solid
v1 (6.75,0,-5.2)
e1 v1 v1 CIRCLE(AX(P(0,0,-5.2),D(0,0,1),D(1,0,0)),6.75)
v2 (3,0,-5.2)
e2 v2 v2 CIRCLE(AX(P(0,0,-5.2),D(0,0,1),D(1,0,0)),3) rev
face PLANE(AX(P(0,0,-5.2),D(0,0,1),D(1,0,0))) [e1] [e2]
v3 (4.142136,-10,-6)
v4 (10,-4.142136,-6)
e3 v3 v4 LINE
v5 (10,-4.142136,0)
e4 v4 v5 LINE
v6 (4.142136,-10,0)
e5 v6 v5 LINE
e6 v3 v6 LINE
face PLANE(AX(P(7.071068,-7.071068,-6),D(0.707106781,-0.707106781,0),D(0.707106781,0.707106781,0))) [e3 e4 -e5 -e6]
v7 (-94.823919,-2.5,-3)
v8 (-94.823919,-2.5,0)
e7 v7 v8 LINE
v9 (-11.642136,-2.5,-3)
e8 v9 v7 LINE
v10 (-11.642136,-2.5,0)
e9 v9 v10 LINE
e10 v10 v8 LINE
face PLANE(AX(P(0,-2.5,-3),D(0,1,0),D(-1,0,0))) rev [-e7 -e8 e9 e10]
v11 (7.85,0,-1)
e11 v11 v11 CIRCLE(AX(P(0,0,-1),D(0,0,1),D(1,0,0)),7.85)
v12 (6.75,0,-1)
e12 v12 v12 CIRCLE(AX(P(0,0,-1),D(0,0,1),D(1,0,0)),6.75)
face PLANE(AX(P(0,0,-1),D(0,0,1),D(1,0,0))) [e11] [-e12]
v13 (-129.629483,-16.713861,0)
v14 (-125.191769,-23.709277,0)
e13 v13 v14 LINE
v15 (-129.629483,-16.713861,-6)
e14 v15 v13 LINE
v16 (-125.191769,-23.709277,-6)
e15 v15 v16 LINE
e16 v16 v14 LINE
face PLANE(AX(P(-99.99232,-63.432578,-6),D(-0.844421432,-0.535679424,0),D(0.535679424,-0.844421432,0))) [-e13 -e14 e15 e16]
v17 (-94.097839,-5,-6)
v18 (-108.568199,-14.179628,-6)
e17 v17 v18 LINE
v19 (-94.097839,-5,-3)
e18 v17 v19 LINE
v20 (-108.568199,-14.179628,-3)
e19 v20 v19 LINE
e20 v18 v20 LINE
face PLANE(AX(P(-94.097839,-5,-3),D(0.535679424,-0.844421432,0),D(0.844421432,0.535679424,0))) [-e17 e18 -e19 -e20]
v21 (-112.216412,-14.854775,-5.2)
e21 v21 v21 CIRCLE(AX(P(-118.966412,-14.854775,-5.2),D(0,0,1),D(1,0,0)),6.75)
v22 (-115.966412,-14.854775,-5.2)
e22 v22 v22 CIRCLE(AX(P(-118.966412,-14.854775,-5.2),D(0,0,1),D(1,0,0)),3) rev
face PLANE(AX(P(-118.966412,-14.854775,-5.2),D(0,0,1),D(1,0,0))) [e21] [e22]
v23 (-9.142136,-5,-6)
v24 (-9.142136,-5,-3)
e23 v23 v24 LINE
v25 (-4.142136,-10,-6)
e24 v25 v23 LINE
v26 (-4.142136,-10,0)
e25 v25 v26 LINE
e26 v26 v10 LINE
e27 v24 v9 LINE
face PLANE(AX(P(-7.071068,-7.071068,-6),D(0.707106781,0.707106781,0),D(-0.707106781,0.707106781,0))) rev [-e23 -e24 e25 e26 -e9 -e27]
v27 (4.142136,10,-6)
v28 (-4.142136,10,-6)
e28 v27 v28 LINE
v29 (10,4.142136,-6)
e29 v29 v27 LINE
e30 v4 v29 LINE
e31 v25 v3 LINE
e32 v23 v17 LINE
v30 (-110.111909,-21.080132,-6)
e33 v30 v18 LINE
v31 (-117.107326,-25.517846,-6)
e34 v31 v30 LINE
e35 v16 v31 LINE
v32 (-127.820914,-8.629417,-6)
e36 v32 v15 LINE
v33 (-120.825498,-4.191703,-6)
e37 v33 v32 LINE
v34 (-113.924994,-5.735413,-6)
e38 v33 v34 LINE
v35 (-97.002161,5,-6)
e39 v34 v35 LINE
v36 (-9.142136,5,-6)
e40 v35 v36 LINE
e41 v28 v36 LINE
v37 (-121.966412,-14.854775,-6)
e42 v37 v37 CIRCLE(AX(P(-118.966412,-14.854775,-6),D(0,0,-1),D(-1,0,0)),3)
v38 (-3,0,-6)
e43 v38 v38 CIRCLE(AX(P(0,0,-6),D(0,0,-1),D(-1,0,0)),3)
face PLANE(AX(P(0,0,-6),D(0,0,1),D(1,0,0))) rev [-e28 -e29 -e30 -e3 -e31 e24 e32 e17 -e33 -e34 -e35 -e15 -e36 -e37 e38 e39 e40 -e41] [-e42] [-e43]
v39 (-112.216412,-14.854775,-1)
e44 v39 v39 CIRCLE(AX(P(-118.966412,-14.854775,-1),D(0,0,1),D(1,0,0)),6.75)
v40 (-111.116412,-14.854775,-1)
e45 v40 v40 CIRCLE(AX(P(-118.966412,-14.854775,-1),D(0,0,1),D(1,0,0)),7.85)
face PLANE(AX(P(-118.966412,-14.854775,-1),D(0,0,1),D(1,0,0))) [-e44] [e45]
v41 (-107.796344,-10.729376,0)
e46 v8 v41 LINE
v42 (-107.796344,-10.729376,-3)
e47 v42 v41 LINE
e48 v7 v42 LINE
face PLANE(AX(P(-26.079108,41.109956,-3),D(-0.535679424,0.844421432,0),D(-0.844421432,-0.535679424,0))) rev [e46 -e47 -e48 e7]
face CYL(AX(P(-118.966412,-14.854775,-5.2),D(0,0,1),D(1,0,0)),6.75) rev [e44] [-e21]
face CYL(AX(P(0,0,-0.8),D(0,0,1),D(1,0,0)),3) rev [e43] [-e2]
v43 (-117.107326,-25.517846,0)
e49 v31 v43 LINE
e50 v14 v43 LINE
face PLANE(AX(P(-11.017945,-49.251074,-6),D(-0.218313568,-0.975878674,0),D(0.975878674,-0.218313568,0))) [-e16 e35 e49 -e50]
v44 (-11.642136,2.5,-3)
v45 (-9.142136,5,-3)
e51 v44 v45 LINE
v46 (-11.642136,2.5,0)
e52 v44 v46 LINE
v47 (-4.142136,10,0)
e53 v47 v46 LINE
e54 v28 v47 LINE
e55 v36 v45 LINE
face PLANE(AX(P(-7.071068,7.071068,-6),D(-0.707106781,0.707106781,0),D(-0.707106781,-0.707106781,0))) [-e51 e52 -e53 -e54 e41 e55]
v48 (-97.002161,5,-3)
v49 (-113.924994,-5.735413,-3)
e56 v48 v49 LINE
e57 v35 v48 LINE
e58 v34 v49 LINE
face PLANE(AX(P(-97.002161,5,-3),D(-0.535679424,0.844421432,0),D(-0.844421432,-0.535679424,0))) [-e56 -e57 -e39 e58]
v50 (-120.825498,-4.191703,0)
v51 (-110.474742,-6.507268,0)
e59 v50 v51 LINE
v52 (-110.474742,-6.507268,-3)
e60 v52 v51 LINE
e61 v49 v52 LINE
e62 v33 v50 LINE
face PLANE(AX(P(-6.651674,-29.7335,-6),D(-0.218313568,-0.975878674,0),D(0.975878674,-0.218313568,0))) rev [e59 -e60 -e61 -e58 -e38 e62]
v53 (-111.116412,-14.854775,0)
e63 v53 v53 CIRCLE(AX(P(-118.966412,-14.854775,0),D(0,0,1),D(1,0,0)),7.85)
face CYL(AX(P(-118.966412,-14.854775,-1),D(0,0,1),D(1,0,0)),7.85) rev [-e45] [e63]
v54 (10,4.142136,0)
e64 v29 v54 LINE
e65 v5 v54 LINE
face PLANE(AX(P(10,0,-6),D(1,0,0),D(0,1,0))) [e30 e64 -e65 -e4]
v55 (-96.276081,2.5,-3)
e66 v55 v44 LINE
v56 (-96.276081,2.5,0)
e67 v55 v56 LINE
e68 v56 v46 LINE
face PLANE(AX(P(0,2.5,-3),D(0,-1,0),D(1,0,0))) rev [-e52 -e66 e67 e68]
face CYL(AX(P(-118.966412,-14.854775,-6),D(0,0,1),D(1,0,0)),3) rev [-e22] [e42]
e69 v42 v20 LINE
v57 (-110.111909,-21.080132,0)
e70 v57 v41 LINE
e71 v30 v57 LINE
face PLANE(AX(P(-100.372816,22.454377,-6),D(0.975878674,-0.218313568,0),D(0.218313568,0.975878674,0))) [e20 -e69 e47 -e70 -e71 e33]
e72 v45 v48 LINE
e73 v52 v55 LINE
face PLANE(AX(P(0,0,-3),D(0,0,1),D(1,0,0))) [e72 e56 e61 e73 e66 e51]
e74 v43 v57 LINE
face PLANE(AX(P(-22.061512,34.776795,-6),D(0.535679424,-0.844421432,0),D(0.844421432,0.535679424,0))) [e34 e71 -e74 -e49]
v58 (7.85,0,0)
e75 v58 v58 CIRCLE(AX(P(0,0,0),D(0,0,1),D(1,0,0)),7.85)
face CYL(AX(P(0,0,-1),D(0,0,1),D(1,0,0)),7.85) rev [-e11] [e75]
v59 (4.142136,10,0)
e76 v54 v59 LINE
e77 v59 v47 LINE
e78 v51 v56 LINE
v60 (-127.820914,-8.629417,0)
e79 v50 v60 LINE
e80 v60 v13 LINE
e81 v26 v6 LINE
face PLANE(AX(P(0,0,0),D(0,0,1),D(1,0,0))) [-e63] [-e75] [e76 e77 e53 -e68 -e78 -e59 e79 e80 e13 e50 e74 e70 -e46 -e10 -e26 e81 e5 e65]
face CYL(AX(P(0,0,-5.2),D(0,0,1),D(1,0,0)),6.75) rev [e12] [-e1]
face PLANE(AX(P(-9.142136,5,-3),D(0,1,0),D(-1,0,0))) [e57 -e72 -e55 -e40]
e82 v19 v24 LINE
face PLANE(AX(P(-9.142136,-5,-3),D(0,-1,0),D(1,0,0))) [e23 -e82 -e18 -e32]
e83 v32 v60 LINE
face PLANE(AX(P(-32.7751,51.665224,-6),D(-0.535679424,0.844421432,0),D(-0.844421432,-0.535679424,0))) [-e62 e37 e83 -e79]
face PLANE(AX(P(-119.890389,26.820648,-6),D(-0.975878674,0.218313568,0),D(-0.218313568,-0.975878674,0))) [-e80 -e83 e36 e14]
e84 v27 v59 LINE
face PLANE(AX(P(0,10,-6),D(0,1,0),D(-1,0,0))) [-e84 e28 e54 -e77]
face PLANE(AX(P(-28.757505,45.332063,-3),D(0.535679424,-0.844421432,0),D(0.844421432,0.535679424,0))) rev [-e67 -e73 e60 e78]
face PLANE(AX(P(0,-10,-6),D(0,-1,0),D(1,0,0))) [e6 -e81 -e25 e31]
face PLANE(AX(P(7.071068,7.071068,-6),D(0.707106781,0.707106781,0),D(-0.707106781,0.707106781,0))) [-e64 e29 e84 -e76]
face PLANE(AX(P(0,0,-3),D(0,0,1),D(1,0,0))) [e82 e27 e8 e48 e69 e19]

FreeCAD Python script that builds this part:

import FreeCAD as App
import Part
import Sketcher

V = App.Vector
Q = App.Units.Quantity

doc = App.newDocument("Part")
params = doc.addObject("Spreadsheet::Sheet", "Params")
for row, (alias, value) in enumerate([
    ("sketch1_diameter", "6 mm"),
    ("pad1_length", "6 mm"),
    ("pad2_length", "3 mm"),
    ("sketch3_diameter", "15.7 mm"),
    ("pocket1_length", "1 mm"),
    ("sketch4_diameter", "13.5 mm"),
    ("pocket2_length", "5.2 mm"),
    ("pad3_length", "0.8 mm"),
    ("sketch6_diameter", "6 mm"),
    ("pocket3_length", "0.8 mm"),
    ("sketch7_diameter", "6 mm"),
    ("pad4_length", "6 mm"),
    ("sketch8_diameter", "15.7 mm"),
    ("pocket4_length", "1 mm"),
    ("sketch9_diameter", "13.5 mm"),
    ("pocket5_length", "5.2 mm"),
    ("pad5_length", "3 mm"),
    ("pocket6_length", "3 mm"),
], start=1):
    params.set(f"A{row}", alias)
    params.set(f"B{row}", "=" + value)
    params.setAlias(f"B{row}", alias)

body = doc.addObject("PartDesign::Body", "Body")

# Sketch on XY plane
sketch1 = body.newObject("Sketcher::SketchObject", "Sketch")
sketch1.AttachmentSupport = (doc.getObject("XY_Plane"), [""])
sketch1.MapMode = "FlatFace"
sketch1.addGeometry(Part.LineSegment(V(4.1, 10, 0), V(-4.1, 10, 0)), False)
sketch1.addGeometry(Part.LineSegment(V(-4.1, 10, 0), V(-11.6, 2.5, 0)), False)
sketch1.addGeometry(Part.LineSegment(V(-11.6, 2.5, 0), V(-96.3, 2.5, 0)), False)
sketch1.addGeometry(Part.LineSegment(V(-96.3, 2.5, 0), V(-110.5, -6.5, 0)), False)
sketch1.addGeometry(Part.LineSegment(V(-110.5, -6.5, 0), V(-120.8, -4.2, 0)), False)
sketch1.addGeometry(Part.LineSegment(V(-120.8, -4.2, 0), V(-127.8, -8.6, 0)), False)
sketch1.addGeometry(Part.LineSegment(V(-127.8, -8.6, 0), V(-129.6, -16.7, 0)), False)
sketch1.addGeometry(Part.LineSegment(V(-129.6, -16.7, 0), V(-125.2, -23.7, 0)), False)
sketch1.addGeometry(Part.LineSegment(V(-125.2, -23.7, 0), V(-117.1, -25.5, 0)), False)
sketch1.addGeometry(Part.LineSegment(V(-117.1, -25.5, 0), V(-110.1, -21.1, 0)), False)
sketch1.addGeometry(Part.LineSegment(V(-110.1, -21.1, 0), V(-107.8, -10.7, 0)), False)
sketch1.addGeometry(Part.LineSegment(V(-107.8, -10.7, 0), V(-94.8, -2.5, 0)), False)
sketch1.addGeometry(Part.LineSegment(V(-94.8, -2.5, 0), V(-11.6, -2.5, 0)), False)
sketch1.addGeometry(Part.LineSegment(V(-11.6, -2.5, 0), V(-4.1, -10, 0)), False)
sketch1.addGeometry(Part.LineSegment(V(-4.1, -10, 0), V(4.1, -10, 0)), False)
sketch1.addGeometry(Part.LineSegment(V(4.1, -10, 0), V(10, -4.1, 0)), False)
sketch1.addGeometry(Part.LineSegment(V(10, -4.1, 0), V(10, 4.1, 0)), False)
sketch1.addGeometry(Part.LineSegment(V(10, 4.1, 0), V(4.1, 10, 0)), False)
sketch1.addGeometry(Part.Circle(V(-119, -14.9, 0), V(0, 0, 1), 3), False)
sketch1.addGeometry(Part.Circle(V(-0.9, 0, 0), V(0, 0, 1), 3), False)
sketch1.addConstraint(Sketcher.Constraint("Coincident", 0, 2, 1, 1))
sketch1.addConstraint(Sketcher.Constraint("Coincident", 1, 2, 2, 1))
sketch1.addConstraint(Sketcher.Constraint("Coincident", 2, 2, 3, 1))
sketch1.addConstraint(Sketcher.Constraint("Coincident", 3, 2, 4, 1))
sketch1.addConstraint(Sketcher.Constraint("Coincident", 4, 2, 5, 1))
sketch1.addConstraint(Sketcher.Constraint("Coincident", 5, 2, 6, 1))
sketch1.addConstraint(Sketcher.Constraint("Coincident", 6, 2, 7, 1))
sketch1.addConstraint(Sketcher.Constraint("Coincident", 7, 2, 8, 1))
sketch1.addConstraint(Sketcher.Constraint("Coincident", 8, 2, 9, 1))
sketch1.addConstraint(Sketcher.Constraint("Coincident", 9, 2, 10, 1))
sketch1.addConstraint(Sketcher.Constraint("Coincident", 10, 2, 11, 1))
sketch1.addConstraint(Sketcher.Constraint("Coincident", 11, 2, 12, 1))
sketch1.addConstraint(Sketcher.Constraint("Coincident", 12, 2, 13, 1))
sketch1.addConstraint(Sketcher.Constraint("Coincident", 13, 2, 14, 1))
sketch1.addConstraint(Sketcher.Constraint("Coincident", 14, 2, 15, 1))
sketch1.addConstraint(Sketcher.Constraint("Coincident", 15, 2, 16, 1))
sketch1.addConstraint(Sketcher.Constraint("Coincident", 16, 2, 17, 1))
sketch1.addConstraint(Sketcher.Constraint("Coincident", 17, 2, 0, 1))
sketch1.addConstraint(Sketcher.Constraint("Horizontal", 0))
sketch1.addConstraint(Sketcher.Constraint("Horizontal", 2))
sketch1.addConstraint(Sketcher.Constraint("Horizontal", 12))
sketch1.addConstraint(Sketcher.Constraint("Horizontal", 14))
sketch1.addConstraint(Sketcher.Constraint("Vertical", 16))
sketch1.addConstraint(Sketcher.Constraint("Equal", 18, 19))
sketch1.addConstraint(Sketcher.Constraint("Symmetric", 0, 2, 14, 2, -1, 1))
sketch1.addConstraint(Sketcher.Constraint("Symmetric", 1, 2, 12, 2, -1))
sketch1.addConstraint(Sketcher.Constraint("PointOnObject", 19, 3, -1))
sketch1.addConstraint(Sketcher.Constraint("Parallel", 3, 5))
sketch1.addConstraint(Sketcher.Constraint("Perpendicular", 4, 6))
sketch1.addConstraint(Sketcher.Constraint("Perpendicular", 5, 7))
sketch1.addConstraint(Sketcher.Constraint("Perpendicular", 6, 8))
sketch1.addConstraint(Sketcher.Constraint("Perpendicular", 7, 9))
sketch1.addConstraint(Sketcher.Constraint("Perpendicular", 8, 10))
sketch1.addConstraint(Sketcher.Constraint("Parallel", 9, 11))
sketch1.addConstraint(Sketcher.Constraint("Perpendicular", 1, 13))
sketch1.addConstraint(Sketcher.Constraint("Perpendicular", 13, 15))
sketch1.addConstraint(Sketcher.Constraint("Perpendicular", 15, 17))
sketch1.addConstraint(Sketcher.Constraint("Vertical", 0, 2, 13, 2))
sketch1.addConstraint(Sketcher.Constraint("Vertical", 14, 2, 17, 2))
sketch1.addConstraint(Sketcher.Constraint("Equal", 14, 16))
sketch1.addConstraint(Sketcher.Constraint("Equal", 1, 4))
sketch1.addConstraint(Sketcher.Constraint("Equal", 5, 6))
sketch1.addConstraint(Sketcher.Constraint("Equal", 6, 7))
sketch1.addConstraint(Sketcher.Constraint("Equal", 7, 8))
sketch1.addConstraint(Sketcher.Constraint("Equal", 8, 9))
sketch1.addConstraint(Sketcher.Constraint("Equal", 4, 10))
sketch1.addConstraint(Sketcher.Constraint("Equal", 9, 15))
sketch1.addConstraint(Sketcher.Constraint("Diameter", 18, Q("6 mm")))
sketch1.addConstraint(Sketcher.Constraint("DistanceY", -1, 1, 0, 2, Q("10 mm")))
sketch1.addConstraint(Sketcher.Constraint("DistanceY", 11, 2, 2, 2, Q("5 mm")))
sketch1.addConstraint(Sketcher.Constraint("Angle", 3, Q("-147.61 deg")))
sketch1.addConstraint(Sketcher.Constraint("Angle", 4, Q("167.39 deg")))
sketch1.addConstraint(Sketcher.Constraint("Distance", 11, Q("15.362501 mm")))
sketch1.addConstraint(Sketcher.Constraint("DistanceX", 0, 2, 0, 1, Q("8.284271 mm")))
sketch1.addConstraint(Sketcher.Constraint("DistanceY", 18, 3, 10, 2, Q("4.125399 mm")))
sketch1.addConstraint(Sketcher.Constraint("DistanceX", 2, 2, 2, 1, Q("84.633945 mm")))
sketch1.addConstraint(Sketcher.Constraint("DistanceX", 18, 3, -1, 1, Q("118.966412 mm")))
sketch1.addConstraint(Sketcher.Constraint("DistanceX", 0, 2, 19, 3, Q("3.265521 mm")))
sketch1.setExpression("Constraints[47]", "Params.sketch1_diameter")
pad1 = body.newObject("PartDesign::Pad", "Pad")
pad1.Profile = sketch1
pad1.setExpression("Length", "Params.pad1_length")
pad1.Reversed = True

# Sketch on XY plane
sketch2 = body.newObject("Sketcher::SketchObject", "Sketch001")
sketch2.AttachmentSupport = (doc.getObject("XY_Plane"), [""])
sketch2.MapMode = "FlatFace"
sketch2.addGeometry(Part.LineSegment(V(-113.9, -5.7, 0), V(-110.5, -6.5, 0)), False)
sketch2.addGeometry(Part.LineSegment(V(-110.5, -6.5, 0), V(-96.3, 2.5, 0)), False)
sketch2.addGeometry(Part.LineSegment(V(-96.3, 2.5, 0), V(-11.6, 2.5, 0)), False)
sketch2.addGeometry(Part.LineSegment(V(-11.6, 2.5, 0), V(-9.1, 5, 0)), False)
sketch2.addGeometry(Part.LineSegment(V(-9.1, 5, 0), V(-97, 5, 0)), False)
sketch2.addGeometry(Part.LineSegment(V(-97, 5, 0), V(-113.9, -5.7, 0)), False)
sketch2.addGeometry(Part.LineSegment(V(-107.8, -10.7, 0), V(-108.6, -14.2, 0)), False)
sketch2.addGeometry(Part.LineSegment(V(-108.6, -14.2, 0), V(-94.1, -5, 0)), False)
sketch2.addGeometry(Part.LineSegment(V(-94.1, -5, 0), V(-9.1, -5, 0)), False)
sketch2.addGeometry(Part.LineSegment(V(-9.1, -5, 0), V(-11.6, -2.5, 0)), False)
sketch2.addGeometry(Part.LineSegment(V(-11.6, -2.5, 0), V(-94.8, -2.5, 0)), False)
sketch2.addGeometry(Part.LineSegment(V(-94.8, -2.5, 0), V(-107.8, -10.7, 0)), False)
sketch2.addConstraint(Sketcher.Constraint("Coincident", 0, 2, 1, 1))
sketch2.addConstraint(Sketcher.Constraint("Coincident", 1, 2, 2, 1))
sketch2.addConstraint(Sketcher.Constraint("Coincident", 2, 2, 3, 1))
sketch2.addConstraint(Sketcher.Constraint("Coincident", 3, 2, 4, 1))
sketch2.addConstraint(Sketcher.Constraint("Coincident", 4, 2, 5, 1))
sketch2.addConstraint(Sketcher.Constraint("Coincident", 5, 2, 0, 1))
sketch2.addConstraint(Sketcher.Constraint("Coincident", 6, 2, 7, 1))
sketch2.addConstraint(Sketcher.Constraint("Coincident", 7, 2, 8, 1))
sketch2.addConstraint(Sketcher.Constraint("Coincident", 8, 2, 9, 1))
sketch2.addConstraint(Sketcher.Constraint("Coincident", 9, 2, 10, 1))
sketch2.addConstraint(Sketcher.Constraint("Coincident", 10, 2, 11, 1))
sketch2.addConstraint(Sketcher.Constraint("Coincident", 11, 2, 6, 1))
sketch2.addConstraint(Sketcher.Constraint("Horizontal", 2))
sketch2.addConstraint(Sketcher.Constraint("Horizontal", 4))
sketch2.addConstraint(Sketcher.Constraint("Horizontal", 8))
sketch2.addConstraint(Sketcher.Constraint("Horizontal", 10))
sketch2.addConstraint(Sketcher.Constraint("Symmetric", 3, 2, 8, 2, -1))
sketch2.addConstraint(Sketcher.Constraint("Symmetric", 2, 2, 9, 2, -1))
sketch2.addConstraint(Sketcher.Constraint("Parallel", 1, 5))
sketch2.addConstraint(Sketcher.Constraint("Perpendicular", 0, 6))
sketch2.addConstraint(Sketcher.Constraint("Parallel", 5, 7))
sketch2.addConstraint(Sketcher.Constraint("Perpendicular", 3, 9))
sketch2.addConstraint(Sketcher.Constraint("Parallel", 7, 11))
sketch2.addConstraint(Sketcher.Constraint("Equal", 0, 3))
sketch2.addConstraint(Sketcher.Constraint("Equal", 3, 6))
sketch2.addConstraint(Sketcher.Constraint("DistanceY", -1, 1, 3, 2, Q("5 mm")))
sketch2.addConstraint(Sketcher.Constraint("DistanceY", 9, 2, 2, 2, Q("5 mm")))
sketch2.addConstraint(Sketcher.Constraint("Angle", 0, Q("-12.61 deg")))
sketch2.addConstraint(Sketcher.Constraint("Angle", 1, Q("32.39 deg")))
sketch2.addConstraint(Sketcher.Constraint("Distance", 11, Q("15.362501 mm")))
sketch2.addConstraint(Sketcher.Constraint("DistanceX", 6, 2, -1, 1, Q("108.568199 mm")))
sketch2.addConstraint(Sketcher.Constraint("Distance", 1, Q("16.814662 mm")))
sketch2.addConstraint(Sketcher.Constraint("DistanceX", 2, 1, 2, 2, Q("84.633945 mm")))
sketch2.addConstraint(Sketcher.Constraint("DistanceX", 8, 1, 8, 2, Q("84.955703 mm")))
pad2 = body.newObject("PartDesign::Pad", "Pad001")
pad2.Profile = sketch2
pad2.setExpression("Length", "Params.pad2_length")
pad2.Reversed = True

# Sketch on XY plane
sketch3 = body.newObject("Sketcher::SketchObject", "Sketch002")
sketch3.AttachmentSupport = (doc.getObject("XY_Plane"), [""])
sketch3.MapMode = "FlatFace"
sketch3.AttachmentOffset = App.Placement(V(0, 0, -6), App.Rotation())
sketch3.addGeometry(Part.Circle(V(0, 0, 0), V(0, 0, 1), 8), False)
sketch3.addGeometry(Part.Circle(V(-119, -15, 0), V(0, 0, 1), 8), False)
sketch3.addConstraint(Sketcher.Constraint("Coincident", 0, 3, -1, 1))
sketch3.addConstraint(Sketcher.Constraint("Equal", 0, 1))
sketch3.addConstraint(Sketcher.Constraint("Diameter", 0, Q("15.7 mm")))
sketch3.addConstraint(Sketcher.Constraint("DistanceX", 1, 3, -1, 1, Q("118.966412 mm")))
sketch3.addConstraint(Sketcher.Constraint("DistanceY", 1, 3, -1, 1, Q("14.854775 mm")))
sketch3.setExpression("Constraints[2]", "Params.sketch3_diameter")
pocket1 = body.newObject("PartDesign::Pocket", "Pocket")
pocket1.Profile = sketch3
pocket1.setExpression("Length", "Params.pocket1_length")
pocket1.Reversed = True

# Sketch on XY plane
sketch4 = body.newObject("Sketcher::SketchObject", "Sketch003")
sketch4.AttachmentSupport = (doc.getObject("XY_Plane"), [""])
sketch4.MapMode = "FlatFace"
sketch4.AttachmentOffset = App.Placement(V(0, 0, -6), App.Rotation())
sketch4.addGeometry(Part.Circle(V(0, 0, 0), V(0, 0, 1), 7), False)
sketch4.addGeometry(Part.Circle(V(-119, -15, 0), V(0, 0, 1), 7), False)
sketch4.addConstraint(Sketcher.Constraint("Coincident", 0, 3, -1, 1))
sketch4.addConstraint(Sketcher.Constraint("Equal", 0, 1))
sketch4.addConstraint(Sketcher.Constraint("Diameter", 0, Q("13.5 mm")))
sketch4.addConstraint(Sketcher.Constraint("DistanceX", 1, 3, -1, 1, Q("118.966412 mm")))
sketch4.addConstraint(Sketcher.Constraint("DistanceY", 1, 3, -1, 1, Q("14.854775 mm")))
sketch4.setExpression("Constraints[2]", "Params.sketch4_diameter")
pocket2 = body.newObject("PartDesign::Pocket", "Pocket001")
pocket2.Profile = sketch4
pocket2.setExpression("Length", "Params.pocket2_length")
pocket2.Reversed = True

# Sketch on XY plane
sketch5 = body.newObject("Sketcher::SketchObject", "Sketch004")
sketch5.AttachmentSupport = (doc.getObject("XY_Plane"), [""])
sketch5.MapMode = "FlatFace"
sketch5.addGeometry(Part.LineSegment(V(-6, 3, 0), V(-6, -3, 0)), False)
sketch5.addGeometry(Part.LineSegment(V(-6, -3, 0), V(4, -3, 0)), False)
sketch5.addGeometry(Part.LineSegment(V(4, -3, 0), V(4, 3, 0)), False)
sketch5.addGeometry(Part.LineSegment(V(4, 3, 0), V(-6, 3, 0)), False)
sketch5.addConstraint(Sketcher.Constraint("Coincident", 0, 2, 1, 1))
sketch5.addConstraint(Sketcher.Constraint("Coincident", 1, 2, 2, 1))
sketch5.addConstraint(Sketcher.Constraint("Coincident", 2, 2, 3, 1))
sketch5.addConstraint(Sketcher.Constraint("Coincident", 3, 2, 0, 1))
sketch5.addConstraint(Sketcher.Constraint("Vertical", 0))
sketch5.addConstraint(Sketcher.Constraint("Horizontal", 1))
sketch5.addConstraint(Sketcher.Constraint("Vertical", 2))
sketch5.addConstraint(Sketcher.Constraint("Horizontal", 3))
sketch5.addConstraint(Sketcher.Constraint("DistanceY", 0, 2, 0, 1, Q("6.677631 mm")))
sketch5.addConstraint(Sketcher.Constraint("DistanceX", 1, 1, 1, 2, Q("10.298948 mm")))
sketch5.addConstraint(Sketcher.Constraint("DistanceX", 0, 2, -1, 1, Q("6.026088 mm")))
sketch5.addConstraint(Sketcher.Constraint("DistanceY", 0, 2, -1, 1, Q("3.338815 mm")))
pad3 = body.newObject("PartDesign::Pad", "Pad002")
pad3.Profile = sketch5
pad3.setExpression("Length", "Params.pad3_length")
pad3.Reversed = True

# Sketch on XY plane
sketch6 = body.newObject("Sketcher::SketchObject", "Sketch005")
sketch6.AttachmentSupport = (doc.getObject("XY_Plane"), [""])
sketch6.MapMode = "FlatFace"
sketch6.addGeometry(Part.Circle(V(0, 0, 0), V(0, 0, 1), 3), False)
sketch6.addConstraint(Sketcher.Constraint("Coincident", 0, 3, -1, 1))
sketch6.addConstraint(Sketcher.Constraint("Diameter", 0, Q("6 mm")))
sketch6.setExpression("Constraints[1]", "Params.sketch6_diameter")
pocket3 = body.newObject("PartDesign::Pocket", "Pocket002")
pocket3.Profile = sketch6
pocket3.setExpression("Length", "Params.pocket3_length")

# Sketch on XY plane
sketch7 = body.newObject("Sketcher::SketchObject", "Sketch006")
sketch7.AttachmentSupport = (doc.getObject("XY_Plane"), [""])
sketch7.MapMode = "FlatFace"
sketch7.addGeometry(Part.Circle(V(0, 0, 0), V(0, 0, 1), 9.1), False)
sketch7.addGeometry(Part.Circle(V(0, 0, 0), V(0, 0, 1), 3), False)
sketch7.addGeometry(Part.Circle(V(-119, -14.9, 0), V(0, 0, 1), 8.5), False)
sketch7.addGeometry(Part.Circle(V(-119, -14.9, 0), V(0, 0, 1), 3), False)
sketch7.addConstraint(Sketcher.Constraint("Coincident", 0, 3, -1, 1))
sketch7.addConstraint(Sketcher.Constraint("Coincident", 1, 3, -1, 1))
sketch7.addConstraint(Sketcher.Constraint("Coincident", 3, 3, 2, 3))
sketch7.addConstraint(Sketcher.Constraint("Equal", 1, 3))
sketch7.addConstraint(Sketcher.Constraint("Diameter", 1, Q("6 mm")))
sketch7.addConstraint(Sketcher.Constraint("Diameter", 0, Q("18.143672 mm")))
sketch7.addConstraint(Sketcher.Constraint("Diameter", 2, Q("17.060213 mm")))
sketch7.addConstraint(Sketcher.Constraint("DistanceX", 2, 3, -1, 1, Q("118.966412 mm")))
sketch7.addConstraint(Sketcher.Constraint("DistanceY", 2, 3, -1, 1, Q("14.854775 mm")))
sketch7.setExpression("Constraints[4]", "Params.sketch7_diameter")
pad4 = body.newObject("PartDesign::Pad", "Pad003")
pad4.Profile = sketch7
pad4.setExpression("Length", "Params.pad4_length")
pad4.Reversed = True

# Sketch on XY plane
sketch8 = body.newObject("Sketcher::SketchObject", "Sketch007")
sketch8.AttachmentSupport = (doc.getObject("XY_Plane"), [""])
sketch8.MapMode = "FlatFace"
sketch8.addGeometry(Part.Circle(V(-119, -15, 0), V(0, 0, 1), 8), False)
sketch8.addGeometry(Part.Circle(V(0, 0, 0), V(0, 0, 1), 8), False)
sketch8.addConstraint(Sketcher.Constraint("Coincident", 1, 3, -1, 1))
sketch8.addConstraint(Sketcher.Constraint("Equal", 0, 1))
sketch8.addConstraint(Sketcher.Constraint("Diameter", 0, Q("15.7 mm")))
sketch8.addConstraint(Sketcher.Constraint("DistanceX", 0, 3, -1, 1, Q("118.966412 mm")))
sketch8.addConstraint(Sketcher.Constraint("DistanceY", 0, 3, -1, 1, Q("14.854775 mm")))
sketch8.setExpression("Constraints[2]", "Params.sketch8_diameter")
pocket4 = body.newObject("PartDesign::Pocket", "Pocket003")
pocket4.Profile = sketch8
pocket4.setExpression("Length", "Params.pocket4_length")

# Sketch on XY plane
sketch9 = body.newObject("Sketcher::SketchObject", "Sketch008")
sketch9.AttachmentSupport = (doc.getObject("XY_Plane"), [""])
sketch9.MapMode = "FlatFace"
sketch9.addGeometry(Part.Circle(V(-119, -15, 0), V(0, 0, 1), 7), False)
sketch9.addGeometry(Part.Circle(V(0, 0, 0), V(0, 0, 1), 7), False)
sketch9.addConstraint(Sketcher.Constraint("Coincident", 1, 3, -1, 1))
sketch9.addConstraint(Sketcher.Constraint("Equal", 0, 1))
sketch9.addConstraint(Sketcher.Constraint("Diameter", 0, Q("13.5 mm")))
sketch9.addConstraint(Sketcher.Constraint("DistanceX", 0, 3, -1, 1, Q("118.966412 mm")))
sketch9.addConstraint(Sketcher.Constraint("DistanceY", 0, 3, -1, 1, Q("14.854775 mm")))
sketch9.setExpression("Constraints[2]", "Params.sketch9_diameter")
pocket5 = body.newObject("PartDesign::Pocket", "Pocket004")
pocket5.Profile = sketch9
pocket5.setExpression("Length", "Params.pocket5_length")

# Sketch on XY plane
sketch10 = body.newObject("Sketcher::SketchObject", "Sketch009")
sketch10.AttachmentSupport = (doc.getObject("XY_Plane"), [""])
sketch10.MapMode = "FlatFace"
sketch10.AttachmentOffset = App.Placement(V(0, 0, -3), App.Rotation())
sketch10.addGeometry(Part.LineSegment(V(-11.6, -2.5, 0), V(-9.1, -5, 0)), False)
sketch10.addGeometry(Part.LineSegment(V(-9.1, -5, 0), V(-94.1, -5, 0)), False)
sketch10.addGeometry(Part.LineSegment(V(-94.1, -5, 0), V(-108.6, -14.2, 0)), False)
sketch10.addGeometry(Part.LineSegment(V(-108.6, -14.2, 0), V(-107.8, -10.7, 0)), False)
sketch10.addGeometry(Part.LineSegment(V(-107.8, -10.7, 0), V(-94.8, -2.5, 0)), False)
sketch10.addGeometry(Part.LineSegment(V(-94.8, -2.5, 0), V(-11.6, -2.5, 0)), False)
sketch10.addGeometry(Part.LineSegment(V(-9.1, 5, 0), V(-11.6, 2.5, 0)), False)
sketch10.addGeometry(Part.LineSegment(V(-11.6, 2.5, 0), V(-96.3, 2.5, 0)), False)
sketch10.addGeometry(Part.LineSegment(V(-96.3, 2.5, 0), V(-110.5, -6.5, 0)), False)
sketch10.addGeometry(Part.LineSegment(V(-110.5, -6.5, 0), V(-113.9, -5.7, 0)), False)
sketch10.addGeometry(Part.LineSegment(V(-113.9, -5.7, 0), V(-97, 5, 0)), False)
sketch10.addGeometry(Part.LineSegment(V(-97, 5, 0), V(-9.1, 5, 0)), False)
sketch10.addConstraint(Sketcher.Constraint("Coincident", 0, 2, 1, 1))
sketch10.addConstraint(Sketcher.Constraint("Coincident", 1, 2, 2, 1))
sketch10.addConstraint(Sketcher.Constraint("Coincident", 2, 2, 3, 1))
sketch10.addConstraint(Sketcher.Constraint("Coincident", 3, 2, 4, 1))
sketch10.addConstraint(Sketcher.Constraint("Coincident", 4, 2, 5, 1))
sketch10.addConstraint(Sketcher.Constraint("Coincident", 5, 2, 0, 1))
sketch10.addConstraint(Sketcher.Constraint("Coincident", 6, 2, 7, 1))
sketch10.addConstraint(Sketcher.Constraint("Coincident", 7, 2, 8, 1))
sketch10.addConstraint(Sketcher.Constraint("Coincident", 8, 2, 9, 1))
sketch10.addConstraint(Sketcher.Constraint("Coincident", 9, 2, 10, 1))
sketch10.addConstraint(Sketcher.Constraint("Coincident", 10, 2, 11, 1))
sketch10.addConstraint(Sketcher.Constraint("Coincident", 11, 2, 6, 1))
sketch10.addConstraint(Sketcher.Constraint("Horizontal", 1))
sketch10.addConstraint(Sketcher.Constraint("Horizontal", 5))
sketch10.addConstraint(Sketcher.Constraint("Horizontal", 7))
sketch10.addConstraint(Sketcher.Constraint("Horizontal", 11))
sketch10.addConstraint(Sketcher.Constraint("Symmetric", 5, 2, 6, 2, -1))
sketch10.addConstraint(Sketcher.Constraint("Symmetric", 0, 2, 11, 2, -1))
sketch10.addConstraint(Sketcher.Constraint("Parallel", 2, 4))
sketch10.addConstraint(Sketcher.Constraint("Perpendicular", 0, 6))
sketch10.addConstraint(Sketcher.Constraint("Parallel", 4, 8))
sketch10.addConstraint(Sketcher.Constraint("Perpendicular", 3, 9))
sketch10.addConstraint(Sketcher.Constraint("Parallel", 8, 10))
sketch10.addConstraint(Sketcher.Constraint("Equal", 0, 3))
sketch10.addConstraint(Sketcher.Constraint("Equal", 6, 9))
sketch10.addConstraint(Sketcher.Constraint("DistanceY", 0, 2, -1, 1, Q("5 mm")))
sketch10.addConstraint(Sketcher.Constraint("DistanceY", 5, 2, 6, 2, Q("5 mm")))
sketch10.addConstraint(Sketcher.Constraint("Angle", 2, Q("-147.61 deg")))
sketch10.addConstraint(Sketcher.Constraint("Angle", 3, Q("77.39 deg")))
sketch10.addConstraint(Sketcher.Constraint("Distance", 4, Q("15.362501 mm")))
sketch10.addConstraint(Sketcher.Constraint("DistanceX", 2, 2, -1, 1, Q("108.568199 mm")))
sketch10.addConstraint(Sketcher.Constraint("Distance", 8, Q("16.814662 mm")))
sketch10.addConstraint(Sketcher.Constraint("DistanceX", 1, 2, 1, 1, Q("84.955703 mm")))
sketch10.addConstraint(Sketcher.Constraint("DistanceX", 7, 2, 7, 1, Q("84.633945 mm")))
pad5 = body.newObject("PartDesign::Pad", "Pad004")
pad5.Profile = sketch10
pad5.setExpression("Length", "Params.pad5_length")
pad5.Reversed = True

# Sketch on XY plane
sketch11 = body.newObject("Sketcher::SketchObject", "Sketch010")
sketch11.AttachmentSupport = (doc.getObject("XY_Plane"), [""])
sketch11.MapMode = "FlatFace"
sketch11.addGeometry(Part.LineSegment(V(-9.1, 5, 0), V(-97, 5, 0)), False)
sketch11.addGeometry(Part.LineSegment(V(-97, 5, 0), V(-113.9, -5.7, 0)), False)
sketch11.addGeometry(Part.LineSegment(V(-113.9, -5.7, 0), V(-110.5, -6.5, 0)), False)
sketch11.addGeometry(Part.LineSegment(V(-110.5, -6.5, 0), V(-96.3, 2.5, 0)), False)
sketch11.addGeometry(Part.LineSegment(V(-96.3, 2.5, 0), V(-11.6, 2.5, 0)), False)
sketch11.addGeometry(Part.LineSegment(V(-11.6, 2.5, 0), V(-9.1, 5, 0)), False)
sketch11.addGeometry(Part.LineSegment(V(-11.6, -2.5, 0), V(-94.8, -2.5, 0)), False)
sketch11.addGeometry(Part.LineSegment(V(-94.8, -2.5, 0), V(-107.8, -10.7, 0)), False)
sketch11.addGeometry(Part.LineSegment(V(-107.8, -10.7, 0), V(-108.6, -14.2, 0)), False)
sketch11.addGeometry(Part.LineSegment(V(-108.6, -14.2, 0), V(-94.1, -5, 0)), False)
sketch11.addGeometry(Part.LineSegment(V(-94.1, -5, 0), V(-9.1, -5, 0)), False)
sketch11.addGeometry(Part.LineSegment(V(-9.1, -5, 0), V(-11.6, -2.5, 0)), False)
sketch11.addConstraint(Sketcher.Constraint("Coincident", 0, 2, 1, 1))
sketch11.addConstraint(Sketcher.Constraint("Coincident", 1, 2, 2, 1))
sketch11.addConstraint(Sketcher.Constraint("Coincident", 2, 2, 3, 1))
sketch11.addConstraint(Sketcher.Constraint("Coincident", 3, 2, 4, 1))
sketch11.addConstraint(Sketcher.Constraint("Coincident", 4, 2, 5, 1))
sketch11.addConstraint(Sketcher.Constraint("Coincident", 5, 2, 0, 1))
sketch11.addConstraint(Sketcher.Constraint("Coincident", 6, 2, 7, 1))
sketch11.addConstraint(Sketcher.Constraint("Coincident", 7, 2, 8, 1))
sketch11.addConstraint(Sketcher.Constraint("Coincident", 8, 2, 9, 1))
sketch11.addConstraint(Sketcher.Constraint("Coincident", 9, 2, 10, 1))
sketch11.addConstraint(Sketcher.Constraint("Coincident", 10, 2, 11, 1))
sketch11.addConstraint(Sketcher.Constraint("Coincident", 11, 2, 6, 1))
sketch11.addConstraint(Sketcher.Constraint("Horizontal", 0))
sketch11.addConstraint(Sketcher.Constraint("Horizontal", 4))
sketch11.addConstraint(Sketcher.Constraint("Horizontal", 6))
sketch11.addConstraint(Sketcher.Constraint("Horizontal", 10))
sketch11.addConstraint(Sketcher.Constraint("Symmetric", 5, 2, 10, 2, -1))
sketch11.addConstraint(Sketcher.Constraint("Symmetric", 4, 2, 11, 2, -1))
sketch11.addConstraint(Sketcher.Constraint("Parallel", 1, 3))
sketch11.addConstraint(Sketcher.Constraint("Parallel", 3, 7))
sketch11.addConstraint(Sketcher.Constraint("Perpendicular", 2, 8))
sketch11.addConstraint(Sketcher.Constraint("Parallel", 7, 9))
sketch11.addConstraint(Sketcher.Constraint("Perpendicular", 5, 11))
sketch11.addConstraint(Sketcher.Constraint("Equal", 2, 5))
sketch11.addConstraint(Sketcher.Constraint("Equal", 5, 8))
sketch11.addConstraint(Sketcher.Constraint("DistanceY", -1, 1, 0, 2, Q("5 mm")))
sketch11.addConstraint(Sketcher.Constraint("DistanceY", 6, 2, 3, 2, Q("5 mm")))
sketch11.addConstraint(Sketcher.Constraint("Angle", 1, Q("-147.61 deg")))
sketch11.addConstraint(Sketcher.Constraint("Angle", 2, Q("-12.61 deg")))
sketch11.addConstraint(Sketcher.Constraint("Distance", 7, Q("15.362501 mm")))
sketch11.addConstraint(Sketcher.Constraint("DistanceX", 8, 2, -1, 1, Q("108.568199 mm")))
sketch11.addConstraint(Sketcher.Constraint("Distance", 3, Q("16.814662 mm")))
sketch11.addConstraint(Sketcher.Constraint("DistanceX", 0, 2, 0, 1, Q("87.860026 mm")))
sketch11.addConstraint(Sketcher.Constraint("DistanceX", 6, 2, 6, 1, Q("83.181784 mm")))
pocket6 = body.newObject("PartDesign::Pocket", "Pocket005")
pocket6.Profile = sketch11
pocket6.setExpression("Length", "Params.pocket6_length")

doc.recompute()
